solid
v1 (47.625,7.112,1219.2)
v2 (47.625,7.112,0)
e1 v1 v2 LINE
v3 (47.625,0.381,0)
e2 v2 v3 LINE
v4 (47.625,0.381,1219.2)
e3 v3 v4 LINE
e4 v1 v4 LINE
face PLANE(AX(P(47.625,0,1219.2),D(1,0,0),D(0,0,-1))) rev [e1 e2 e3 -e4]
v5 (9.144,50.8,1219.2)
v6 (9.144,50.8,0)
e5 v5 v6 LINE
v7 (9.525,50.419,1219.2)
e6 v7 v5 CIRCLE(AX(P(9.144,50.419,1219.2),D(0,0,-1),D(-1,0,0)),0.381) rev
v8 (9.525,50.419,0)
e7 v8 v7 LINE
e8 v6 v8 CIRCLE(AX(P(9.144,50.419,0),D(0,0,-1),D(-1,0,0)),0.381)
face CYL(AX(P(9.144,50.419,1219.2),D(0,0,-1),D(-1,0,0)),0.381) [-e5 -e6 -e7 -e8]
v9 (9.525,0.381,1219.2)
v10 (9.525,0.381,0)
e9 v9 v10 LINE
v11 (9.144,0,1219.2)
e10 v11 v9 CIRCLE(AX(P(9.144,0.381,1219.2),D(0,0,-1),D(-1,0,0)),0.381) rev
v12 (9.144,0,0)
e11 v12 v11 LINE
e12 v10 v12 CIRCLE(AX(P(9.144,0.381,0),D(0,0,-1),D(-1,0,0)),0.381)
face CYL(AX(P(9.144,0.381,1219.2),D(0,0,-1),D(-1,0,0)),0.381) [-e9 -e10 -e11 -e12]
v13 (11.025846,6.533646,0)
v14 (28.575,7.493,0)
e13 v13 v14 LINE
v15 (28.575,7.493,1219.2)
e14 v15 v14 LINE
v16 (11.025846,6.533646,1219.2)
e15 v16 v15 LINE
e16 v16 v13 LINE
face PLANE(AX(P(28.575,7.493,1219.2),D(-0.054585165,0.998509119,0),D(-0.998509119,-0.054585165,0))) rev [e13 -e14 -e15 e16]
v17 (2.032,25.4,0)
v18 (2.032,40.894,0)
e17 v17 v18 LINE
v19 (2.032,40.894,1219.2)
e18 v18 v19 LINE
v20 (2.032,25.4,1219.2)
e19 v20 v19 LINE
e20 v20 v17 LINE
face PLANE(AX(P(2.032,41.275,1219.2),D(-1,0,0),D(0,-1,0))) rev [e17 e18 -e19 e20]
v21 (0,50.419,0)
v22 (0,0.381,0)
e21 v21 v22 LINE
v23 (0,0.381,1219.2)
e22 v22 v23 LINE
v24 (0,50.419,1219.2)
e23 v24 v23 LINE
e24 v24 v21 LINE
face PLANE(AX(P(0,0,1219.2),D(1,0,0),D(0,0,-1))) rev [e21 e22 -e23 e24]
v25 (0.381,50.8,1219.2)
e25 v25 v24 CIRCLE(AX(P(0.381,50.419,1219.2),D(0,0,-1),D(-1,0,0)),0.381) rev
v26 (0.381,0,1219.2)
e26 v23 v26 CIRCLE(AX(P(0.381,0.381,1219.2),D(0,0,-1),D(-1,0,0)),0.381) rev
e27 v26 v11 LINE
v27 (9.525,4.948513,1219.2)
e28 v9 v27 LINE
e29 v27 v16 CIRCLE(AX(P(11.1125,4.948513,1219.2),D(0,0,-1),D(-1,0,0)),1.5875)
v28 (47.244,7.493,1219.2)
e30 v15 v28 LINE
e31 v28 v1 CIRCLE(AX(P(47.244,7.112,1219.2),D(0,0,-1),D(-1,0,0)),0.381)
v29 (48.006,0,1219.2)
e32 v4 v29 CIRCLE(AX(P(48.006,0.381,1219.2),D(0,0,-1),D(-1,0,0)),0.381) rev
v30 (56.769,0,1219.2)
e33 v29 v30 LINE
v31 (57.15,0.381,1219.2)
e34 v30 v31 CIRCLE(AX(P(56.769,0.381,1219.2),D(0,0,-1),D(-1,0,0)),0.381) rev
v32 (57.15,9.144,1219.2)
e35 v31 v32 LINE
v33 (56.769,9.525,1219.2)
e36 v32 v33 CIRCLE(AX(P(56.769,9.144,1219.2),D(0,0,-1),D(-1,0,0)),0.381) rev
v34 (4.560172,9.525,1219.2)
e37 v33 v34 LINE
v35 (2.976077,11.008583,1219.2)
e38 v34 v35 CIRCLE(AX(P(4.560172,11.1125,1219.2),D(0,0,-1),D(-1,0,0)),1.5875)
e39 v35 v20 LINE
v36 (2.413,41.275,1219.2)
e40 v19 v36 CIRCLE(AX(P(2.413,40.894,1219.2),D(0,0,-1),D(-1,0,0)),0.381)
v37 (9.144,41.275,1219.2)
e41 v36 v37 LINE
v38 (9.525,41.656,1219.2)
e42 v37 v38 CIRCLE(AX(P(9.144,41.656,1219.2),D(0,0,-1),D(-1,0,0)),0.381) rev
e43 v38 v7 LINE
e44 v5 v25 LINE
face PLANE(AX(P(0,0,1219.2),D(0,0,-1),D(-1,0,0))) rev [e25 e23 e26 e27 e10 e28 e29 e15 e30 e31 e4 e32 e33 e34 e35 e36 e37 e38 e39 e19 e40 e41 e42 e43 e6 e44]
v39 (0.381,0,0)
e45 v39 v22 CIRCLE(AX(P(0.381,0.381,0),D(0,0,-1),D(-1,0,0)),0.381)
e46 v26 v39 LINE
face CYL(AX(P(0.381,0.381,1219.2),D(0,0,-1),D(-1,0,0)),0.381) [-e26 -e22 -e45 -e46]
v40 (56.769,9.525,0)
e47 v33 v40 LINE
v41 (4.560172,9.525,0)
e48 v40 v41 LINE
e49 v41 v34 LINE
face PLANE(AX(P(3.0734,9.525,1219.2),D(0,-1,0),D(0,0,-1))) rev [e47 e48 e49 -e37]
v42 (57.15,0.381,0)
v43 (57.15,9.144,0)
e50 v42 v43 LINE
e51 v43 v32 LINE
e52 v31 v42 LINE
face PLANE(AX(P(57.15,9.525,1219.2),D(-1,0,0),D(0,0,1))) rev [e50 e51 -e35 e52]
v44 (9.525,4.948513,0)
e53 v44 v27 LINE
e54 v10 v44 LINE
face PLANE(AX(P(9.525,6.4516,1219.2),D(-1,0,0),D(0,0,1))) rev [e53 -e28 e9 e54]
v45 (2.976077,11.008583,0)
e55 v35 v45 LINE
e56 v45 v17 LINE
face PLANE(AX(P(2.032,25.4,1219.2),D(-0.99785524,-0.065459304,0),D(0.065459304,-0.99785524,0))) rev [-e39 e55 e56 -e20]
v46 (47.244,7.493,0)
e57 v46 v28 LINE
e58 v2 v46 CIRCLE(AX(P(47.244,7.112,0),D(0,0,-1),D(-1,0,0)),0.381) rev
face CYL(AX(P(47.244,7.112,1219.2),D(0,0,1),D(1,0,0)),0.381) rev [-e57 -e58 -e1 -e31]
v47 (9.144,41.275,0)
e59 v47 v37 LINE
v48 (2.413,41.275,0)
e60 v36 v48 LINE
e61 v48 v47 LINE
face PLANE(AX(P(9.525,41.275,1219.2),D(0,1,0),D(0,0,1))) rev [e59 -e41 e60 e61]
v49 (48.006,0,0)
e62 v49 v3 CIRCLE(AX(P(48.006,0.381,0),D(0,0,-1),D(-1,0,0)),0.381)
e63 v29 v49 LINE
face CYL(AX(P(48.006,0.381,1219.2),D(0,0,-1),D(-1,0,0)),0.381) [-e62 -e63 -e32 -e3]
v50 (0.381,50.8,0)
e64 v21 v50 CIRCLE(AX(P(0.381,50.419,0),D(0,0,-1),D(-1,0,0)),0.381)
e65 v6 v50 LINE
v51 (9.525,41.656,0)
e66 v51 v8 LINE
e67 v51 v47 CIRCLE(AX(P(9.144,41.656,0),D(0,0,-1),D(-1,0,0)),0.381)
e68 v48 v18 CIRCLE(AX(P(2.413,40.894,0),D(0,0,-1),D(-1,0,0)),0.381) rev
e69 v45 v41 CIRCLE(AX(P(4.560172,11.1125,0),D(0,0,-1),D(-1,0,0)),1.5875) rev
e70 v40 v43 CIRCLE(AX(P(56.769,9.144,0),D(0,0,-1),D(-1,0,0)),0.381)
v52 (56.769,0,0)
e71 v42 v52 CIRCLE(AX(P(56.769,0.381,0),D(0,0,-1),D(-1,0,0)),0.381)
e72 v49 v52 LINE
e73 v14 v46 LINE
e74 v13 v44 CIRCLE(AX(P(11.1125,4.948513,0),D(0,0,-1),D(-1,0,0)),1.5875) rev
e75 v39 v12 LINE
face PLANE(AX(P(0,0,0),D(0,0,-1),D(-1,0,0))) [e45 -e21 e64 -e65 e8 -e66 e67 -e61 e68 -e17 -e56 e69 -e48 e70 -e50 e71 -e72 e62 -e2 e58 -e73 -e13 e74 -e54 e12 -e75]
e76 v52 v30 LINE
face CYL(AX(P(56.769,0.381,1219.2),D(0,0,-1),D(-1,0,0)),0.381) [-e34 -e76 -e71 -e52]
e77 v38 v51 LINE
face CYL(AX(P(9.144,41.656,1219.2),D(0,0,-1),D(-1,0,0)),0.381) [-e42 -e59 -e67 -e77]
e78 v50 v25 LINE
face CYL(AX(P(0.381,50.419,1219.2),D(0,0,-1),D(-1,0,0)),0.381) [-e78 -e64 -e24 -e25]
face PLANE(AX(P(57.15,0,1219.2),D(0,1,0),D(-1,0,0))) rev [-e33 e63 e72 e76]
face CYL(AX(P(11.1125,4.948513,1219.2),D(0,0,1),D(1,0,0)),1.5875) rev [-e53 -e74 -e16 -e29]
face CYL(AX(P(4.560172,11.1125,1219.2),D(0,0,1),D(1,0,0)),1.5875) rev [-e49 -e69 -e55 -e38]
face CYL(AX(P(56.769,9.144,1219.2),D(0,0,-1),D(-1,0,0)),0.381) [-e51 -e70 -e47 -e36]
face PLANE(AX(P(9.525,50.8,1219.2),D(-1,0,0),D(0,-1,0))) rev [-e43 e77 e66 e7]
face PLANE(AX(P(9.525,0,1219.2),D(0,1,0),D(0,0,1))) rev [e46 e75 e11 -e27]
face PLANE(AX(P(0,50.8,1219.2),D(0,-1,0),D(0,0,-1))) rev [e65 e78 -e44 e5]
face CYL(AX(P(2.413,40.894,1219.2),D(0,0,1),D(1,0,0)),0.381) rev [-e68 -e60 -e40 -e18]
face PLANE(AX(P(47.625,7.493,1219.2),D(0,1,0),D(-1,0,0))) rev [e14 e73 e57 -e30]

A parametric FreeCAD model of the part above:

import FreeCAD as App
import Part
import Sketcher

V = App.Vector
Q = App.Units.Quantity


def edges_at(feature, points):
    """Names of the edges that pass closest to the given points."""
    edges = feature.Shape.Edges
    near = lambda p: min(range(len(edges)), key=lambda i: edges[i].distToShape(Part.Vertex(*p))[0])
    return sorted({f"Edge{near(p) + 1}" for p in points})


def add_polygon(sketch, points):
    """Adds a closed chain of lines whose ends are joined by coincident constraints."""
    first, n = sketch.GeometryCount, len(points)
    for a, b in zip(points, points[1:] + points[:1]):
        sketch.addGeometry(Part.LineSegment(App.Vector(*a, 0), App.Vector(*b, 0)), False)
    for i in range(n):
        sketch.addConstraint(Sketcher.Constraint("Coincident", first + i, 2, first + (i + 1) % n, 1))

doc = App.newDocument("Part")
body = doc.addObject("PartDesign::Body", "Body")

# Sketch on XY plane
sketch1 = body.newObject("Sketcher::SketchObject", "Sketch")
sketch1.AttachmentSupport = (doc.getObject("XY_Plane"), [""])
sketch1.MapMode = "FlatFace"
add_polygon(sketch1, [(0, 51), (0, 0), (10, 0), (10, 6), (29, 7), (48, 7), (48, 0), (57, 0), (57, 10), (3, 10), (2, 25), (2, 41), (10, 41), (10, 51)])  # lines 0-13
sketch1.addConstraint([
    Sketcher.Constraint("Vertical", 0),
    Sketcher.Constraint("Horizontal", 1),
    Sketcher.Constraint("Vertical", 2),
    Sketcher.Constraint("Horizontal", 4),
    Sketcher.Constraint("Vertical", 5),
    Sketcher.Constraint("Horizontal", 6),
    Sketcher.Constraint("Vertical", 7),
    Sketcher.Constraint("Horizontal", 8),
    Sketcher.Constraint("Vertical", 10),
    Sketcher.Constraint("Horizontal", 11),
    Sketcher.Constraint("Vertical", 12),
    Sketcher.Constraint("Horizontal", 13),
    Sketcher.Constraint("Coincident", 0, 2, -1, 1),
    Sketcher.Constraint("PointOnObject", 5, 2, -1),
    Sketcher.Constraint("Vertical", 2, 2, 11, 2),
    Sketcher.Constraint("Equal", 1, 6),
    Sketcher.Constraint("Equal", 11, 5),
    Sketcher.Constraint("Equal", 13, 7),
    Sketcher.Constraint("Equal", 7, 12),
    Sketcher.Constraint("DistanceY", 0, 2, 0, 1, Q("2 in")),
    Sketcher.Constraint("DistanceY", -1, 1, 9, 2, Q("1 in")),
    Sketcher.Constraint("DistanceX", 4, 1, 4, 2, Q("0.75 in")),
    Sketcher.Constraint("DistanceX", 2, 2, 4, 2, Q("1.5 in")),
    Sketcher.Constraint("DistanceX", 1, 1, 1, 2, Q("0.375 in")),
    Sketcher.Constraint("DistanceX", 8, 2, 8, 1, Q("2.129 in")),
    Sketcher.Constraint("DistanceX", 11, 1, 11, 2, Q("0.295 in")),
    Sketcher.Constraint("DistanceY", 2, 1, 2, 2, Q("0.254 in")),
])
pad1 = body.newObject("PartDesign::Pad", "Pad")
pad1.Profile = sketch1
pad1.Length = Q("48 in")
doc.recompute()

fillet = body.newObject("PartDesign::Fillet", "Fillet")
fillet.Base = (pad1, edges_at(pad1, [
    (0, 0, 609.6),
    (0, 50.8, 609.6),
    (9.525, 50.8, 609.6),
    (9.525, 41.275, 609.6),
    (2.032, 41.275, 609.6),
    (57.15, 9.525, 609.6),
    (57.15, 0, 609.6),
    (47.625, 0, 609.6),
    (47.625, 7.493, 609.6),
    (9.525, 0, 609.6),
]))
fillet.Radius = Q("0.015 in")
doc.recompute()

fillet2 = body.newObject("PartDesign::Fillet", "Fillet001")
fillet2.Base = (fillet, edges_at(fillet, [(3.073, 9.525, 609.6), (9.525, 6.452, 609.6)]))
fillet2.Radius = Q("0.0625 in")

doc.recompute()
